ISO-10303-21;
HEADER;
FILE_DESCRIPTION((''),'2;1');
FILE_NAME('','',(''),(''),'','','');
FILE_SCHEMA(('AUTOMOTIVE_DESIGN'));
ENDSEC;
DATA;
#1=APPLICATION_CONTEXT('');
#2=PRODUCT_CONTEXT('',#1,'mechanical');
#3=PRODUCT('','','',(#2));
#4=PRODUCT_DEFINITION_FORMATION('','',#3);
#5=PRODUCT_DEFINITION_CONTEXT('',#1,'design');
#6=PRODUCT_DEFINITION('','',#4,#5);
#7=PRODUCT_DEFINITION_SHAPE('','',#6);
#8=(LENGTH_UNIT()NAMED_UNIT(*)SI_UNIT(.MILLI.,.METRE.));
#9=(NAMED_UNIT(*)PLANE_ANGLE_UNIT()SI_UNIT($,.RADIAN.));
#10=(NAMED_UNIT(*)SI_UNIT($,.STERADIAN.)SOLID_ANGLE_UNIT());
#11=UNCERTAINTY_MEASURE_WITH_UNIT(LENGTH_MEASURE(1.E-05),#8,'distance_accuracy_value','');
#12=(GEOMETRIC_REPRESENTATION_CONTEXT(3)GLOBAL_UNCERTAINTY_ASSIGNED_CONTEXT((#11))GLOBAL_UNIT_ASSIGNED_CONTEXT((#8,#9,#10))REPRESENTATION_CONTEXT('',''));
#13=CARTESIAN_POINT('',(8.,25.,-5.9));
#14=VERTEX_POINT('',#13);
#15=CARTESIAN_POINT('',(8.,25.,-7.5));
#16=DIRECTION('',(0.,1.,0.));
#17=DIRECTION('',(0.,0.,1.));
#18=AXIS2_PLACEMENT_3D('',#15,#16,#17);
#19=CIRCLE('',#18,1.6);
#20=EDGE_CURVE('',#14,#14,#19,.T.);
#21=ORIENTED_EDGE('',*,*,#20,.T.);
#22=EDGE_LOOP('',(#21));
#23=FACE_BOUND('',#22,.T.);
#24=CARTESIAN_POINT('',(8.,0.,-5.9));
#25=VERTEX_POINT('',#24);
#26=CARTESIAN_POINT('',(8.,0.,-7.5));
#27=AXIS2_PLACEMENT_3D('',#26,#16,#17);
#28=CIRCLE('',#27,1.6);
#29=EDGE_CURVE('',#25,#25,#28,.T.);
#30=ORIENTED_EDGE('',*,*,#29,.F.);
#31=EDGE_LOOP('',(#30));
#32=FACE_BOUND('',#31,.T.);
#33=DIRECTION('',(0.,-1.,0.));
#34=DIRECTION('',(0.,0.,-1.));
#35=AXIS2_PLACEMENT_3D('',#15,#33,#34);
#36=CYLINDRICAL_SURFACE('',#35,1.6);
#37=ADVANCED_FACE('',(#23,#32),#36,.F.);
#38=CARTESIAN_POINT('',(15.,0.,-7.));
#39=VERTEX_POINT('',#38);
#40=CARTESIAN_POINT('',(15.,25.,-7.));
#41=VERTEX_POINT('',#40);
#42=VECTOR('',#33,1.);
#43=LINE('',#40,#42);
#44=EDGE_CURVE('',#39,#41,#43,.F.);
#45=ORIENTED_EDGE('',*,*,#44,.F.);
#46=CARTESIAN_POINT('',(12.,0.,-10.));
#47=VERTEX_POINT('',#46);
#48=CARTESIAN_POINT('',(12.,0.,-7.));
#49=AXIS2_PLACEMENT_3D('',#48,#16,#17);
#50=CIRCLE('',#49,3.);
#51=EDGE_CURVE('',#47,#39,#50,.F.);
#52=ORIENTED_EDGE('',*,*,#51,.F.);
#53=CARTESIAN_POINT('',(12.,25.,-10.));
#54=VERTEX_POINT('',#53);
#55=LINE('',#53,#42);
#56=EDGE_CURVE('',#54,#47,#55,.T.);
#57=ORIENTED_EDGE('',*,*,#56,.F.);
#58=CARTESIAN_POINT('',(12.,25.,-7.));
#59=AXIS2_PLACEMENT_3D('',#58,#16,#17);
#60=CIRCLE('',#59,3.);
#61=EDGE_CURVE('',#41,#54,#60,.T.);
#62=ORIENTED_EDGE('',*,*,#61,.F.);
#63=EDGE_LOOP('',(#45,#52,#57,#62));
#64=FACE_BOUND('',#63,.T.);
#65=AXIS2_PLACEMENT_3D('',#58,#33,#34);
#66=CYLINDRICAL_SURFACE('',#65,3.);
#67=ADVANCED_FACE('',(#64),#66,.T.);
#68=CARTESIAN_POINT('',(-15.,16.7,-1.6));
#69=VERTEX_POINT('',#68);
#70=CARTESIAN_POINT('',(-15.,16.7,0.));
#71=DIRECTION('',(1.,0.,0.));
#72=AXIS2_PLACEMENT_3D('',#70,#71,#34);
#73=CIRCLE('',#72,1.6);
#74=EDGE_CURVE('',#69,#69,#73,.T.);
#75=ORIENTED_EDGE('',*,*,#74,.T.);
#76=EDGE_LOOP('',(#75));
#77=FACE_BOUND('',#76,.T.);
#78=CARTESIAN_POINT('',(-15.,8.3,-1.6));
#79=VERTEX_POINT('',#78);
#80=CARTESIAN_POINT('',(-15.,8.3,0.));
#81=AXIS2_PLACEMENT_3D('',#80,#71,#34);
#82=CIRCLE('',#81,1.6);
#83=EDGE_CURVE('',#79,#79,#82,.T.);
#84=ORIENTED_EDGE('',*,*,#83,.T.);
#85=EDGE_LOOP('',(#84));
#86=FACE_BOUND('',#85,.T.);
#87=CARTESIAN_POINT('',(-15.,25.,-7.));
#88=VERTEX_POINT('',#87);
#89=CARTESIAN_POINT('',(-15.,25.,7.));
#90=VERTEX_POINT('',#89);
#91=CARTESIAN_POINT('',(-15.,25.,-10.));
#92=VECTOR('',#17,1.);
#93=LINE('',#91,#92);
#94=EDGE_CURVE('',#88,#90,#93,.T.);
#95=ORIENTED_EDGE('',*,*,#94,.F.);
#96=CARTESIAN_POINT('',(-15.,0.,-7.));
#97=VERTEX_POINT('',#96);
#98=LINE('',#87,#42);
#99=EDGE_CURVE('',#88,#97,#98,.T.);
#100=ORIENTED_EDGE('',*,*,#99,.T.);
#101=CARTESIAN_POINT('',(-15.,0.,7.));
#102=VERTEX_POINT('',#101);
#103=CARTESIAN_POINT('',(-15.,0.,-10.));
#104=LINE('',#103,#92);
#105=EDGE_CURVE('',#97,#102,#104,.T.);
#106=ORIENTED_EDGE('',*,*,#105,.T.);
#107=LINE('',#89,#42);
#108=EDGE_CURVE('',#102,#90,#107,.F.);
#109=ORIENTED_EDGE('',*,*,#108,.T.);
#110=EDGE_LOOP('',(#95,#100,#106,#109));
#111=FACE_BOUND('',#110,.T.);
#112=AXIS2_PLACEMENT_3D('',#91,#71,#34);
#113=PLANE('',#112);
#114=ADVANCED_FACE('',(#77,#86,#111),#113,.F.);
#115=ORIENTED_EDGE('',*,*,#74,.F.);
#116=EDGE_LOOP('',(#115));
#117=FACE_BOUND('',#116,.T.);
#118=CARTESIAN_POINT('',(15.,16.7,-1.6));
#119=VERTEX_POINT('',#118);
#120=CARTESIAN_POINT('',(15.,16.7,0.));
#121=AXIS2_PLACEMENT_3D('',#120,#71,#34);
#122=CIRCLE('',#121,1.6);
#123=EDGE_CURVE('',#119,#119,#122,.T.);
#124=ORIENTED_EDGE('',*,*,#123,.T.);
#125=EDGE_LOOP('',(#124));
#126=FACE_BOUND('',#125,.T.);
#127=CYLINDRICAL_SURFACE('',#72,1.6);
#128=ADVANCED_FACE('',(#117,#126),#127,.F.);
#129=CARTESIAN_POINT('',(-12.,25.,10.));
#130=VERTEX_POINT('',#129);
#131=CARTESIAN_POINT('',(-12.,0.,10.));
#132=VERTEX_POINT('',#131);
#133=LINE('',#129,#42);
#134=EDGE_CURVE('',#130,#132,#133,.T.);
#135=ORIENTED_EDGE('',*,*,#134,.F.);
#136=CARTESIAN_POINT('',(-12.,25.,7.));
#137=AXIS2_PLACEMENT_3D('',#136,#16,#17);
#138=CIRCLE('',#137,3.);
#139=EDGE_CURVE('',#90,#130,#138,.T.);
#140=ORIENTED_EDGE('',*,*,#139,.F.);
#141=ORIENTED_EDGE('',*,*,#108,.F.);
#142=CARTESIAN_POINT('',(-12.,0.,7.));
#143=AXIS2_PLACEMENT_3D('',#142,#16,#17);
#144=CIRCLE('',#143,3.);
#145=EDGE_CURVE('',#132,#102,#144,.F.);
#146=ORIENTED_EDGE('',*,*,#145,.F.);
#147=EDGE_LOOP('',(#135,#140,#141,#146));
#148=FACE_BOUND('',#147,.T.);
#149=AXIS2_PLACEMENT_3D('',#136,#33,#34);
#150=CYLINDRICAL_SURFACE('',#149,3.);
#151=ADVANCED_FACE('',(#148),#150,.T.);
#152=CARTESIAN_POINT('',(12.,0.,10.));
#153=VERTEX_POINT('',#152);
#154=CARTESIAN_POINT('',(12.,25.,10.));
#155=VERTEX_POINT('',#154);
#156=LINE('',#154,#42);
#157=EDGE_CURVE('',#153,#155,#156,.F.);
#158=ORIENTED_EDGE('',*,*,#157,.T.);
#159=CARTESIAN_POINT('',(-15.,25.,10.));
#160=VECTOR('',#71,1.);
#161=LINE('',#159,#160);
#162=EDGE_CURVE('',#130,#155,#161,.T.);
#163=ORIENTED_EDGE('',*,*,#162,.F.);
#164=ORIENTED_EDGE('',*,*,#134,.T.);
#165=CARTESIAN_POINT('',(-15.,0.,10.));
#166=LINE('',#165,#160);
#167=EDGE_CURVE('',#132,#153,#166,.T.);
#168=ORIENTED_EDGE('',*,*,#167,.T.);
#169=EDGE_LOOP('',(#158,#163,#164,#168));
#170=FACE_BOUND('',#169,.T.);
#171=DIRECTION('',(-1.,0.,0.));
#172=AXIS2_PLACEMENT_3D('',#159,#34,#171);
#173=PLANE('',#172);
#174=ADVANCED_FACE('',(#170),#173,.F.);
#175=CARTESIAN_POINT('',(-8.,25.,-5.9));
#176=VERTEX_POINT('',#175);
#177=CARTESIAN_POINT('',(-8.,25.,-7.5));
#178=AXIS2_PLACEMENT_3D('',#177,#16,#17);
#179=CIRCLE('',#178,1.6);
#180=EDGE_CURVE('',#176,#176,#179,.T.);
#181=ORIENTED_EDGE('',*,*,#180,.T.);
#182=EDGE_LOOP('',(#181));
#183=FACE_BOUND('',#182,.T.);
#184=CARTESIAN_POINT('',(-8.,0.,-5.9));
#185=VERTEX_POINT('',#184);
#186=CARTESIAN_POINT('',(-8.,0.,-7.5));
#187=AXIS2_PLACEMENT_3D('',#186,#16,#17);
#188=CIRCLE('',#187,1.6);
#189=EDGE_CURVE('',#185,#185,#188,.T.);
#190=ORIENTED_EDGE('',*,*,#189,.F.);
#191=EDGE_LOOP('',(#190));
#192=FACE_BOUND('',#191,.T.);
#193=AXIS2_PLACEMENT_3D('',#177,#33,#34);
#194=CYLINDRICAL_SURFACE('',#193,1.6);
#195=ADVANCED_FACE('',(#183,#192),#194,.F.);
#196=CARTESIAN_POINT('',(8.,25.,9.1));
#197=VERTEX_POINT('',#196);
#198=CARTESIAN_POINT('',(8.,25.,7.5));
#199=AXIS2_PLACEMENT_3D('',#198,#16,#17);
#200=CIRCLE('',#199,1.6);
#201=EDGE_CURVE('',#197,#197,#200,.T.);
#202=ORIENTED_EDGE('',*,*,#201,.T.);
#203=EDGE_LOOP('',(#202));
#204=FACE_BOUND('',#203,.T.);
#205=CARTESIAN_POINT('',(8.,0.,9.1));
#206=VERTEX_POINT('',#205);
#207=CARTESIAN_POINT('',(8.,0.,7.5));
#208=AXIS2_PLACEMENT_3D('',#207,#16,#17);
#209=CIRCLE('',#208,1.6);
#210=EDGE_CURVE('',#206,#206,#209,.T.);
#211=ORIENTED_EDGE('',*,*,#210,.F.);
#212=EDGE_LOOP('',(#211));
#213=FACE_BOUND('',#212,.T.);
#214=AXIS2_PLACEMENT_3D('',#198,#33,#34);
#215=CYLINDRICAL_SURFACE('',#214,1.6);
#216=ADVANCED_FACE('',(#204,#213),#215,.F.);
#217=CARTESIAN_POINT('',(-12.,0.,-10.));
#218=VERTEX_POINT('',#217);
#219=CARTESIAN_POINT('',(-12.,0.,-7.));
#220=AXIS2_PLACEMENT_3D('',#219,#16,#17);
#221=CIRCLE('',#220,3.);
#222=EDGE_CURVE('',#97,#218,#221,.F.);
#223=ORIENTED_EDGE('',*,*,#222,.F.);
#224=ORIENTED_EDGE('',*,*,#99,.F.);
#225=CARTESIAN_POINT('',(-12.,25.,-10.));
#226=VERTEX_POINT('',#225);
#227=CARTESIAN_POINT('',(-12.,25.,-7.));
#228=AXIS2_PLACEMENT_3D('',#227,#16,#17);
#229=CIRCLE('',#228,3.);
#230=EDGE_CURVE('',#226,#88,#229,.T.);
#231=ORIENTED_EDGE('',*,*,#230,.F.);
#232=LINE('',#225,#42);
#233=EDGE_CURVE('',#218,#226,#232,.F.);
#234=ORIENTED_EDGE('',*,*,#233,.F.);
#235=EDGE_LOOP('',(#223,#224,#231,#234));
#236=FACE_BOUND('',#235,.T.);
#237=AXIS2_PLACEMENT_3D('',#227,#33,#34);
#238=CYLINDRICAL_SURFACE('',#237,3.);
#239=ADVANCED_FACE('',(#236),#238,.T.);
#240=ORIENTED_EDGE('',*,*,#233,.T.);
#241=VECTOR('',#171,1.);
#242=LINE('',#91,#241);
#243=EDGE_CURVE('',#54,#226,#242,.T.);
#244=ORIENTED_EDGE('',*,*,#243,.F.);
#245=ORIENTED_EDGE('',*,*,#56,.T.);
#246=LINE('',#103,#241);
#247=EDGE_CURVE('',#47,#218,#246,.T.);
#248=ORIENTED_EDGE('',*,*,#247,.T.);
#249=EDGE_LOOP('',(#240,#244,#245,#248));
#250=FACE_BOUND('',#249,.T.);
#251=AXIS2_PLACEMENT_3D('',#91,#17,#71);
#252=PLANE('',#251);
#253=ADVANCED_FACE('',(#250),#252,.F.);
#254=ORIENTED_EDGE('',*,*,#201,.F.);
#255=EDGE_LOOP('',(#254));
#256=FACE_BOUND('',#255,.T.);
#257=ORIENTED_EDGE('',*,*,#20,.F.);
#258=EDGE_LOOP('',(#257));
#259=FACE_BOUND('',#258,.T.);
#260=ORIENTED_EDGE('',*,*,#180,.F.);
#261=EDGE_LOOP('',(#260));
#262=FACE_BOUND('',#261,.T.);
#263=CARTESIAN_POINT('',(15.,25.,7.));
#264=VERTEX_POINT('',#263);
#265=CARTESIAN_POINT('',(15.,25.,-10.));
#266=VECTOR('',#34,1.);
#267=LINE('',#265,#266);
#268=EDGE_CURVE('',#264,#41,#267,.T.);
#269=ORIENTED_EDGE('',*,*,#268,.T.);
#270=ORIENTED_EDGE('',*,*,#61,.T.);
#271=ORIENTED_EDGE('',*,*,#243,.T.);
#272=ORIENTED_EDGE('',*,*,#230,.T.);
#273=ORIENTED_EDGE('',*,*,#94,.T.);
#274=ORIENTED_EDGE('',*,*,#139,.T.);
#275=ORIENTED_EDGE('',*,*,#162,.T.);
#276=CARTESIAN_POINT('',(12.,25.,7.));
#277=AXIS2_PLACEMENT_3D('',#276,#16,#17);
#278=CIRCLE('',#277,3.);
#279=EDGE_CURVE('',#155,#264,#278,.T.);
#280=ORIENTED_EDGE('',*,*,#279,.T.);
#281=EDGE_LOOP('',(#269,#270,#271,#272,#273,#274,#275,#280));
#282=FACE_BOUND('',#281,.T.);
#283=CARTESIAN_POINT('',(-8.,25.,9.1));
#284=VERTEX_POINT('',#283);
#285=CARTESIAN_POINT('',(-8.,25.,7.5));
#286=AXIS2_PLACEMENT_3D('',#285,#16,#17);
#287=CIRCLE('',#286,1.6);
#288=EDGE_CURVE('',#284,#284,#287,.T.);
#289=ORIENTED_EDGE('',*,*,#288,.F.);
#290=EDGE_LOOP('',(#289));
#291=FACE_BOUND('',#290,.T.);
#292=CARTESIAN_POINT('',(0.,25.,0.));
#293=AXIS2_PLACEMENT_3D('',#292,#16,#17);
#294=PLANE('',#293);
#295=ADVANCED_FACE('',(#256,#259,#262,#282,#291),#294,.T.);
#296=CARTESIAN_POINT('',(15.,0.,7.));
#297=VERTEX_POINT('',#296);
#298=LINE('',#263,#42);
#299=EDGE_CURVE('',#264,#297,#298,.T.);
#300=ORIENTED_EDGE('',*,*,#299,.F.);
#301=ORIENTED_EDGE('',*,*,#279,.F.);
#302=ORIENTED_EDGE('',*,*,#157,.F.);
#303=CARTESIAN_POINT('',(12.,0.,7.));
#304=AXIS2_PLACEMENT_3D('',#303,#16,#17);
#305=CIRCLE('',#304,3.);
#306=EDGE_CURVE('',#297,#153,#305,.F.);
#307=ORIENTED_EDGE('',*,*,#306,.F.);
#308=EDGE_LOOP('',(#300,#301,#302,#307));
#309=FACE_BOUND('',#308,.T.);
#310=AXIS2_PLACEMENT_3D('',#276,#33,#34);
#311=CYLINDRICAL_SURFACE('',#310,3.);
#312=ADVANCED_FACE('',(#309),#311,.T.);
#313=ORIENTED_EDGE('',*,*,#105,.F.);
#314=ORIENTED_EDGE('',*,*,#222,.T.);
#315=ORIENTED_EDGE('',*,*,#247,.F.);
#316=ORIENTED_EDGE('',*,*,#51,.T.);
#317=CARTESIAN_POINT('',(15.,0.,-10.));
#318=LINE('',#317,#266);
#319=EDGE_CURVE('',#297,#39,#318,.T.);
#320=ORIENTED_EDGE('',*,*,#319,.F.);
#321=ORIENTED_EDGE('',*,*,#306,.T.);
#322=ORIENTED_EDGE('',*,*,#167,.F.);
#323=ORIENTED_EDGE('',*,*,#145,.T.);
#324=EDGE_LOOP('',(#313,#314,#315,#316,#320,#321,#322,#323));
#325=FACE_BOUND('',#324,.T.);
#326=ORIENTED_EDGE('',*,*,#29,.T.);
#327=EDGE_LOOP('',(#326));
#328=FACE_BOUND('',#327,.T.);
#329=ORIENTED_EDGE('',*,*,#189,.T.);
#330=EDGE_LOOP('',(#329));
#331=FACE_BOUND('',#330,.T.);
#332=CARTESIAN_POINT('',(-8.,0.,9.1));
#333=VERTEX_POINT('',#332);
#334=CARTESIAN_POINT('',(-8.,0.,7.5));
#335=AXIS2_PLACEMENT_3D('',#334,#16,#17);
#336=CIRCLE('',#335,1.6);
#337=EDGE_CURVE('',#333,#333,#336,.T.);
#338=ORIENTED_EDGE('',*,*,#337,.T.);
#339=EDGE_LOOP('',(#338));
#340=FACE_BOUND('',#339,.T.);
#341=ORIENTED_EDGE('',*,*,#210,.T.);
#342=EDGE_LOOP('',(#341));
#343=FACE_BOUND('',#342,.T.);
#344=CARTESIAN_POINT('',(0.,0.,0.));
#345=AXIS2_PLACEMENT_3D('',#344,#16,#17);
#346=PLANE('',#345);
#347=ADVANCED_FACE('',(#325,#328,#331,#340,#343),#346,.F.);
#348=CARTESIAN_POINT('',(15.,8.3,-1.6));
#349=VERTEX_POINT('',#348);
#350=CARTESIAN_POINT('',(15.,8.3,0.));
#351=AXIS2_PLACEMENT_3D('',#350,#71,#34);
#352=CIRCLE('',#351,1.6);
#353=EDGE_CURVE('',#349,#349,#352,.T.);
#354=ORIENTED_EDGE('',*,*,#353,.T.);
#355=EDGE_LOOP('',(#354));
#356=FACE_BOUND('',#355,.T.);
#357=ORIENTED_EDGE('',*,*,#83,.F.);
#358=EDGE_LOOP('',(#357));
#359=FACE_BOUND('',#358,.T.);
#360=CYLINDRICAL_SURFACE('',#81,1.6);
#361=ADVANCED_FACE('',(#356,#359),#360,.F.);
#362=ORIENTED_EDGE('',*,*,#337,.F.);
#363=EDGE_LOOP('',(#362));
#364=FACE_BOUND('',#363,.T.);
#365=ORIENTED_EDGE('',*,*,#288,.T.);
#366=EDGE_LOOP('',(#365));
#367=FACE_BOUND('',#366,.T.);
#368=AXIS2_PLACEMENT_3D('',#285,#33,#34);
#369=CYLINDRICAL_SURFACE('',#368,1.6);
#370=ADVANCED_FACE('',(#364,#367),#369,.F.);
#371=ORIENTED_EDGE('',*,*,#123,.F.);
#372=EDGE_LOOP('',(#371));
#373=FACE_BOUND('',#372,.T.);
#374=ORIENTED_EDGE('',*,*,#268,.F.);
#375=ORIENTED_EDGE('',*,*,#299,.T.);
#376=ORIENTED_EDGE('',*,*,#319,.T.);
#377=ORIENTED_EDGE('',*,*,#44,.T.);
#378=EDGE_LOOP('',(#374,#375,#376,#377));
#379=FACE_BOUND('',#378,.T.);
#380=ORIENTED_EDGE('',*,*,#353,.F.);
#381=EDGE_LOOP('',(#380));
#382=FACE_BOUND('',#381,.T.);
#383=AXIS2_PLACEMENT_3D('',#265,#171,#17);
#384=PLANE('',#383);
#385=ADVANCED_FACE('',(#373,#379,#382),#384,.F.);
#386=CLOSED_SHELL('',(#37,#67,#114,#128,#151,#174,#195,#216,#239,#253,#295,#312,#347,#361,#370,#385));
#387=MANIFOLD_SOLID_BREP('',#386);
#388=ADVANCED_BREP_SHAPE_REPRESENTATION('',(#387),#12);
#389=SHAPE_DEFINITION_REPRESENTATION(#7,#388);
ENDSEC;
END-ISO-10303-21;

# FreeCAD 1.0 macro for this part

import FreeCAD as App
import Part
import Sketcher


def edges_at(feature, points):
    """Names of the edges that pass closest to the given points."""
    edges = feature.Shape.Edges
    near = lambda p: min(range(len(edges)), key=lambda i: edges[i].distToShape(Part.Vertex(*p))[0])
    return sorted({f"Edge{near(p) + 1}" for p in points})

doc = App.newDocument("Part")
body = doc.addObject("PartDesign::Body", "Body")

sketch1 = body.newObject("Sketcher::SketchObject", "Sketch")
sketch1.AttachmentSupport = (doc.getObject("XZ_Plane"), [""])
sketch1.MapMode = "FlatFace"
sketch1.addGeometry(Part.LineSegment(App.Vector(-15, -10, 0), App.Vector(-15, 10, 0)), False)
sketch1.addGeometry(Part.LineSegment(App.Vector(-15, 10, 0), App.Vector(15, 10, 0)), False)
sketch1.addGeometry(Part.LineSegment(App.Vector(15, 10, 0), App.Vector(15, -10, 0)), False)
sketch1.addGeometry(Part.LineSegment(App.Vector(15, -10, 0), App.Vector(-15, -10, 0)), False)
sketch1.addGeometry(Part.Circle(App.Vector(-8, 7.5, 0), App.Vector(0, 0, 1), 1.6), False)
sketch1.addGeometry(Part.Circle(App.Vector(8, 7.5, 0), App.Vector(0, 0, 1), 1.6), False)
sketch1.addGeometry(Part.Circle(App.Vector(-8, -7.5, 0), App.Vector(0, 0, 1), 1.6), False)
sketch1.addGeometry(Part.Circle(App.Vector(8, -7.5, 0), App.Vector(0, 0, 1), 1.6), False)
sketch1.addConstraint(Sketcher.Constraint("Coincident", 0, 2, 1, 1))
sketch1.addConstraint(Sketcher.Constraint("Coincident", 1, 2, 2, 1))
sketch1.addConstraint(Sketcher.Constraint("Coincident", 2, 2, 3, 1))
sketch1.addConstraint(Sketcher.Constraint("Coincident", 3, 2, 0, 1))
sketch1.addConstraint(Sketcher.Constraint("Vertical", 0))
sketch1.addConstraint(Sketcher.Constraint("Horizontal", 1))
sketch1.addConstraint(Sketcher.Constraint("Vertical", 2))
sketch1.addConstraint(Sketcher.Constraint("Horizontal", 3))
sketch1.addConstraint(Sketcher.Constraint("Equal", 4, 5))
sketch1.addConstraint(Sketcher.Constraint("Equal", 5, 6))
sketch1.addConstraint(Sketcher.Constraint("Equal", 6, 7))
sketch1.addConstraint(Sketcher.Constraint("Symmetric", 5, 3, 6, 3, -1, 1))
sketch1.addConstraint(Sketcher.Constraint("Symmetric", 4, 3, 7, 3, -1, 1))
sketch1.addConstraint(Sketcher.Constraint("Symmetric", 0, 2, 2, 2, -1, 1))
sketch1.addConstraint(Sketcher.Constraint("Symmetric", 4, 3, 5, 3, -2))
sketch1.addConstraint(Sketcher.Constraint("Diameter", 4, 3.2))
sketch1.addConstraint(Sketcher.Constraint("DistanceX", 1, 1, 1, 2, 30.0))
sketch1.addConstraint(Sketcher.Constraint("DistanceY", 0, 1, 0, 2, 20.0))
sketch1.addConstraint(Sketcher.Constraint("DistanceX", 4, 3, -1, 1, 8.0))
sketch1.addConstraint(Sketcher.Constraint("DistanceY", 6, 3, 4, 3, 15.0))
pad1 = body.newObject("PartDesign::Pad", "Pad")
pad1.Profile = sketch1
pad1.Length = 25
pad1.Reversed = True
doc.recompute()

fillet = body.newObject("PartDesign::Fillet", "Fillet")
fillet.Base = (pad1, edges_at(pad1, [
    (15, 12.5, 10),
    (-15, 12.5, 10),
    (-15, 12.5, -10),
    (15, 12.5, -10),
]))
fillet.Radius = 3

sketch2 = body.newObject("Sketcher::SketchObject", "Sketch001")
sketch2.AttachmentSupport = (doc.getObject("YZ_Plane"), [""])
sketch2.MapMode = "FlatFace"
sketch2.AttachmentOffset = App.Placement(App.Vector(0, 0, 15), App.Rotation())
sketch2.addGeometry(Part.Circle(App.Vector(16.7, 0, 0), App.Vector(0, 0, 1), 1.6), False)
sketch2.addGeometry(Part.Circle(App.Vector(8.3, 0, 0), App.Vector(0, 0, 1), 1.6), False)
sketch2.addConstraint(Sketcher.Constraint("Equal", 0, 1))
sketch2.addConstraint(Sketcher.Constraint("PointOnObject", 0, 3, -1))
sketch2.addConstraint(Sketcher.Constraint("PointOnObject", 1, 3, -1))
sketch2.addConstraint(Sketcher.Constraint("Diameter", 0, 3.2))
sketch2.addConstraint(Sketcher.Constraint("DistanceX", -1, 1, 0, 3, 16.7))
sketch2.addConstraint(Sketcher.Constraint("DistanceX", -1, 1, 1, 3, 8.3))
pocket1 = body.newObject("PartDesign::Pocket", "Pocket")
pocket1.Profile = sketch2
pocket1.Type = "ThroughAll"

sketch3 = body.newObject("Sketcher::SketchObject", "Sketch002")
sketch3.AttachmentSupport = (doc.getObject("YZ_Plane"), [""])
sketch3.MapMode = "FlatFace"
sketch3.AttachmentOffset = App.Placement(App.Vector(0, 0, 15), App.Rotation())
sketch3.addGeometry(Part.Circle(App.Vector(16.7, 0, 0), App.Vector(0, 0, 1), 1.6), False)
sketch3.addConstraint(Sketcher.Constraint("PointOnObject", 0, 3, -1))
sketch3.addConstraint(Sketcher.Constraint("Diameter", 0, 3.2))
sketch3.addConstraint(Sketcher.Constraint("DistanceX", -1, 1, 0, 3, 16.7))
pad2 = body.newObject("PartDesign::Pad", "Pad001")
pad2.Profile = sketch3
pad2.Length = 30
pad2.Reversed = True

sketch4 = body.newObject("Sketcher::SketchObject", "Sketch003")
sketch4.AttachmentSupport = (doc.getObject("YZ_Plane"), [""])
sketch4.MapMode = "FlatFace"
sketch4.AttachmentOffset = App.Placement(App.Vector(0, 0, 15), App.Rotation())
sketch4.addGeometry(Part.Circle(App.Vector(16.7, 0, 0), App.Vector(0, 0, 1), 1.6), False)
sketch4.addConstraint(Sketcher.Constraint("PointOnObject", 0, 3, -1))
sketch4.addConstraint(Sketcher.Constraint("Diameter", 0, 3.2))
sketch4.addConstraint(Sketcher.Constraint("DistanceX", -1, 1, 0, 3, 16.7))
pocket2 = body.newObject("PartDesign::Pocket", "Pocket001")
pocket2.Profile = sketch4
pocket2.Type = "ThroughAll"

doc.recompute()
